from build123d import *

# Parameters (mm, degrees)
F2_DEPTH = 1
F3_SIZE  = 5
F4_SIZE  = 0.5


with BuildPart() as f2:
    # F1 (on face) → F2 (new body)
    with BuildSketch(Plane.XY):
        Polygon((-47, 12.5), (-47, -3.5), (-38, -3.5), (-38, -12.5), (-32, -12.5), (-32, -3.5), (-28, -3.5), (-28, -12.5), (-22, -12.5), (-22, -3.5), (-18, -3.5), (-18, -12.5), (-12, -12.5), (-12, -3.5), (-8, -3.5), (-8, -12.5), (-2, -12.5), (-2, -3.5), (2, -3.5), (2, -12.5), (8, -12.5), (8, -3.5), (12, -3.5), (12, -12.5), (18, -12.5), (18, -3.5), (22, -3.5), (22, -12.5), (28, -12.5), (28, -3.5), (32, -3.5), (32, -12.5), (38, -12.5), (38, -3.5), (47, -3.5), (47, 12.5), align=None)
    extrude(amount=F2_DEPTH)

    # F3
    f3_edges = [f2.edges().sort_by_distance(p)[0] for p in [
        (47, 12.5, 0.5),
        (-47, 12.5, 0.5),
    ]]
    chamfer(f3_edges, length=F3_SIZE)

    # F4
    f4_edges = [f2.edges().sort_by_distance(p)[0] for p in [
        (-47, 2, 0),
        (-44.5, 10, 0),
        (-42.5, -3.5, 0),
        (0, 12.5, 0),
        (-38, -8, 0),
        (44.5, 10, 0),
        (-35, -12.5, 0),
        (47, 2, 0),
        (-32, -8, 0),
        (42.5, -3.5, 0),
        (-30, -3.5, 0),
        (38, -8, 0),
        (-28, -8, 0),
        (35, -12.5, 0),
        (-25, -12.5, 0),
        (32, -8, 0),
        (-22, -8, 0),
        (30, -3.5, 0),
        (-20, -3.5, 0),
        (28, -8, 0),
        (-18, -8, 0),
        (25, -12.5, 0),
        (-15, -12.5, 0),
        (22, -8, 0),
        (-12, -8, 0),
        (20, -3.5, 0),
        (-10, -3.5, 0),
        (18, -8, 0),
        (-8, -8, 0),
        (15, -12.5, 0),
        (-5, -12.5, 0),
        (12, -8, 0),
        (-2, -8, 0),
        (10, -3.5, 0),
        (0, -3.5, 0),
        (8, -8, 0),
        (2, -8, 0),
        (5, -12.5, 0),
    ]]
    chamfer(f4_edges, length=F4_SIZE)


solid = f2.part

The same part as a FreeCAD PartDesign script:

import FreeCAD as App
import Part
import Sketcher


def edges_at(feature, points):
    """Names of the edges that pass closest to the given points."""
    edges = feature.Shape.Edges
    near = lambda p: min(range(len(edges)), key=lambda i: edges[i].distToShape(Part.Vertex(*p))[0])
    return sorted({f"Edge{near(p) + 1}" for p in points})

doc = App.newDocument("Part")
body = doc.addObject("PartDesign::Body", "Body")

sketch1 = doc.addObject("Sketcher::SketchObject", "Sketch")
body.addObject(sketch1)
sketch1.AttachmentSupport = (doc.XY_Plane, [""])
sketch1.MapMode = "FlatFace"
sketch1.addGeometry(Part.LineSegment(App.Vector(-47, 12.5, 0), App.Vector(-47, -3.5, 0)), False)
sketch1.addGeometry(Part.LineSegment(App.Vector(-47, -3.5, 0), App.Vector(-38, -3.5, 0)), False)
sketch1.addGeometry(Part.LineSegment(App.Vector(-38, -3.5, 0), App.Vector(-38, -12.5, 0)), False)
sketch1.addGeometry(Part.LineSegment(App.Vector(-38, -12.5, 0), App.Vector(-32, -12.5, 0)), False)
sketch1.addGeometry(Part.LineSegment(App.Vector(-32, -12.5, 0), App.Vector(-32, -3.5, 0)), False)
sketch1.addGeometry(Part.LineSegment(App.Vector(-32, -3.5, 0), App.Vector(-28, -3.5, 0)), False)
sketch1.addGeometry(Part.LineSegment(App.Vector(-28, -3.5, 0), App.Vector(-28, -12.5, 0)), False)
sketch1.addGeometry(Part.LineSegment(App.Vector(-28, -12.5, 0), App.Vector(-22, -12.5, 0)), False)
sketch1.addGeometry(Part.LineSegment(App.Vector(-22, -12.5, 0), App.Vector(-22, -3.5, 0)), False)
sketch1.addGeometry(Part.LineSegment(App.Vector(-22, -3.5, 0), App.Vector(-18, -3.5, 0)), False)
sketch1.addGeometry(Part.LineSegment(App.Vector(-18, -3.5, 0), App.Vector(-18, -12.5, 0)), False)
sketch1.addGeometry(Part.LineSegment(App.Vector(-18, -12.5, 0), App.Vector(-12, -12.5, 0)), False)
sketch1.addGeometry(Part.LineSegment(App.Vector(-12, -12.5, 0), App.Vector(-12, -3.5, 0)), False)
sketch1.addGeometry(Part.LineSegment(App.Vector(-12, -3.5, 0), App.Vector(-8, -3.5, 0)), False)
sketch1.addGeometry(Part.LineSegment(App.Vector(-8, -3.5, 0), App.Vector(-8, -12.5, 0)), False)
sketch1.addGeometry(Part.LineSegment(App.Vector(-8, -12.5, 0), App.Vector(-2, -12.5, 0)), False)
sketch1.addGeometry(Part.LineSegment(App.Vector(-2, -12.5, 0), App.Vector(-2, -3.5, 0)), False)
sketch1.addGeometry(Part.LineSegment(App.Vector(-2, -3.5, 0), App.Vector(2, -3.5, 0)), False)
sketch1.addGeometry(Part.LineSegment(App.Vector(2, -3.5, 0), App.Vector(2, -12.5, 0)), False)
sketch1.addGeometry(Part.LineSegment(App.Vector(2, -12.5, 0), App.Vector(8, -12.5, 0)), False)
sketch1.addGeometry(Part.LineSegment(App.Vector(8, -12.5, 0), App.Vector(8, -3.5, 0)), False)
sketch1.addGeometry(Part.LineSegment(App.Vector(8, -3.5, 0), App.Vector(12, -3.5, 0)), False)
sketch1.addGeometry(Part.LineSegment(App.Vector(12, -3.5, 0), App.Vector(12, -12.5, 0)), False)
sketch1.addGeometry(Part.LineSegment(App.Vector(12, -12.5, 0), App.Vector(18, -12.5, 0)), False)
sketch1.addGeometry(Part.LineSegment(App.Vector(18, -12.5, 0), App.Vector(18, -3.5, 0)), False)
sketch1.addGeometry(Part.LineSegment(App.Vector(18, -3.5, 0), App.Vector(22, -3.5, 0)), False)
sketch1.addGeometry(Part.LineSegment(App.Vector(22, -3.5, 0), App.Vector(22, -12.5, 0)), False)
sketch1.addGeometry(Part.LineSegment(App.Vector(22, -12.5, 0), App.Vector(28, -12.5, 0)), False)
sketch1.addGeometry(Part.LineSegment(App.Vector(28, -12.5, 0), App.Vector(28, -3.5, 0)), False)
sketch1.addGeometry(Part.LineSegment(App.Vector(28, -3.5, 0), App.Vector(32, -3.5, 0)), False)
sketch1.addGeometry(Part.LineSegment(App.Vector(32, -3.5, 0), App.Vector(32, -12.5, 0)), False)
sketch1.addGeometry(Part.LineSegment(App.Vector(32, -12.5, 0), App.Vector(38, -12.5, 0)), False)
sketch1.addGeometry(Part.LineSegment(App.Vector(38, -12.5, 0), App.Vector(38, -3.5, 0)), False)
sketch1.addGeometry(Part.LineSegment(App.Vector(38, -3.5, 0), App.Vector(47, -3.5, 0)), False)
sketch1.addGeometry(Part.LineSegment(App.Vector(47, -3.5, 0), App.Vector(47, 12.5, 0)), False)
sketch1.addGeometry(Part.LineSegment(App.Vector(47, 12.5, 0), App.Vector(-47, 12.5, 0)), False)
sketch1.addConstraint(Sketcher.Constraint("Coincident", 0, 2, 1, 1))
sketch1.addConstraint(Sketcher.Constraint("Coincident", 1, 2, 2, 1))
sketch1.addConstraint(Sketcher.Constraint("Coincident", 2, 2, 3, 1))
sketch1.addConstraint(Sketcher.Constraint("Coincident", 3, 2, 4, 1))
sketch1.addConstraint(Sketcher.Constraint("Coincident", 4, 2, 5, 1))
sketch1.addConstraint(Sketcher.Constraint("Coincident", 5, 2, 6, 1))
sketch1.addConstraint(Sketcher.Constraint("Coincident", 6, 2, 7, 1))
sketch1.addConstraint(Sketcher.Constraint("Coincident", 7, 2, 8, 1))
sketch1.addConstraint(Sketcher.Constraint("Coincident", 8, 2, 9, 1))
sketch1.addConstraint(Sketcher.Constraint("Coincident", 9, 2, 10, 1))
sketch1.addConstraint(Sketcher.Constraint("Coincident", 10, 2, 11, 1))
sketch1.addConstraint(Sketcher.Constraint("Coincident", 11, 2, 12, 1))
sketch1.addConstraint(Sketcher.Constraint("Coincident", 12, 2, 13, 1))
sketch1.addConstraint(Sketcher.Constraint("Coincident", 13, 2, 14, 1))
sketch1.addConstraint(Sketcher.Constraint("Coincident", 14, 2, 15, 1))
sketch1.addConstraint(Sketcher.Constraint("Coincident", 15, 2, 16, 1))
sketch1.addConstraint(Sketcher.Constraint("Coincident", 16, 2, 17, 1))
sketch1.addConstraint(Sketcher.Constraint("Coincident", 17, 2, 18, 1))
sketch1.addConstraint(Sketcher.Constraint("Coincident", 18, 2, 19, 1))
sketch1.addConstraint(Sketcher.Constraint("Coincident", 19, 2, 20, 1))
sketch1.addConstraint(Sketcher.Constraint("Coincident", 20, 2, 21, 1))
sketch1.addConstraint(Sketcher.Constraint("Coincident", 21, 2, 22, 1))
sketch1.addConstraint(Sketcher.Constraint("Coincident", 22, 2, 23, 1))
sketch1.addConstraint(Sketcher.Constraint("Coincident", 23, 2, 24, 1))
sketch1.addConstraint(Sketcher.Constraint("Coincident", 24, 2, 25, 1))
sketch1.addConstraint(Sketcher.Constraint("Coincident", 25, 2, 26, 1))
sketch1.addConstraint(Sketcher.Constraint("Coincident", 26, 2, 27, 1))
sketch1.addConstraint(Sketcher.Constraint("Coincident", 27, 2, 28, 1))
sketch1.addConstraint(Sketcher.Constraint("Coincident", 28, 2, 29, 1))
sketch1.addConstraint(Sketcher.Constraint("Coincident", 29, 2, 30, 1))
sketch1.addConstraint(Sketcher.Constraint("Coincident", 30, 2, 31, 1))
sketch1.addConstraint(Sketcher.Constraint("Coincident", 31, 2, 32, 1))
sketch1.addConstraint(Sketcher.Constraint("Coincident", 32, 2, 33, 1))
sketch1.addConstraint(Sketcher.Constraint("Coincident", 33, 2, 34, 1))
sketch1.addConstraint(Sketcher.Constraint("Coincident", 34, 2, 35, 1))
sketch1.addConstraint(Sketcher.Constraint("Coincident", 35, 2, 0, 1))
sketch1.addConstraint(Sketcher.Constraint("Vertical", 0))
sketch1.addConstraint(Sketcher.Constraint("Horizontal", 1))
sketch1.addConstraint(Sketcher.Constraint("Vertical", 2))
sketch1.addConstraint(Sketcher.Constraint("Horizontal", 3))
sketch1.addConstraint(Sketcher.Constraint("Vertical", 4))
sketch1.addConstraint(Sketcher.Constraint("Horizontal", 5))
sketch1.addConstraint(Sketcher.Constraint("Vertical", 6))
sketch1.addConstraint(Sketcher.Constraint("Horizontal", 7))
sketch1.addConstraint(Sketcher.Constraint("Vertical", 8))
sketch1.addConstraint(Sketcher.Constraint("Horizontal", 9))
sketch1.addConstraint(Sketcher.Constraint("Vertical", 10))
sketch1.addConstraint(Sketcher.Constraint("Horizontal", 11))
sketch1.addConstraint(Sketcher.Constraint("Vertical", 12))
sketch1.addConstraint(Sketcher.Constraint("Horizontal", 13))
sketch1.addConstraint(Sketcher.Constraint("Vertical", 14))
sketch1.addConstraint(Sketcher.Constraint("Horizontal", 15))
sketch1.addConstraint(Sketcher.Constraint("Vertical", 16))
sketch1.addConstraint(Sketcher.Constraint("Horizontal", 17))
sketch1.addConstraint(Sketcher.Constraint("Vertical", 18))
sketch1.addConstraint(Sketcher.Constraint("Horizontal", 19))
sketch1.addConstraint(Sketcher.Constraint("Vertical", 20))
sketch1.addConstraint(Sketcher.Constraint("Horizontal", 21))
sketch1.addConstraint(Sketcher.Constraint("Vertical", 22))
sketch1.addConstraint(Sketcher.Constraint("Horizontal", 23))
sketch1.addConstraint(Sketcher.Constraint("Vertical", 24))
sketch1.addConstraint(Sketcher.Constraint("Horizontal", 25))
sketch1.addConstraint(Sketcher.Constraint("Vertical", 26))
sketch1.addConstraint(Sketcher.Constraint("Horizontal", 27))
sketch1.addConstraint(Sketcher.Constraint("Vertical", 28))
sketch1.addConstraint(Sketcher.Constraint("Horizontal", 29))
sketch1.addConstraint(Sketcher.Constraint("Vertical", 30))
sketch1.addConstraint(Sketcher.Constraint("Horizontal", 31))
sketch1.addConstraint(Sketcher.Constraint("Vertical", 32))
sketch1.addConstraint(Sketcher.Constraint("Horizontal", 33))
sketch1.addConstraint(Sketcher.Constraint("Vertical", 34))
sketch1.addConstraint(Sketcher.Constraint("Horizontal", 35))
sketch1.addConstraint(Sketcher.Constraint("Symmetric", 15, 2, 18, 2, -2))
sketch1.addConstraint(Sketcher.Constraint("Symmetric", 13, 2, 20, 2, -2))
sketch1.addConstraint(Sketcher.Constraint("Symmetric", 11, 2, 22, 2, -2))
sketch1.addConstraint(Sketcher.Constraint("Symmetric", 9, 2, 24, 2, -2))
sketch1.addConstraint(Sketcher.Constraint("Symmetric", 7, 2, 26, 2, -2))
sketch1.addConstraint(Sketcher.Constraint("Symmetric", 5, 2, 28, 2, -2))
sketch1.addConstraint(Sketcher.Constraint("Symmetric", 3, 2, 30, 2, -2))
sketch1.addConstraint(Sketcher.Constraint("Symmetric", 1, 2, 32, 2, -2))
sketch1.addConstraint(Sketcher.Constraint("Horizontal", 1, 2, 4, 2))
sketch1.addConstraint(Sketcher.Constraint("Horizontal", 3, 2, 6, 2))
sketch1.addConstraint(Sketcher.Constraint("Horizontal", 5, 2, 8, 2))
sketch1.addConstraint(Sketcher.Constraint("Horizontal", 7, 2, 10, 2))
sketch1.addConstraint(Sketcher.Constraint("Horizontal", 9, 2, 12, 2))
sketch1.addConstraint(Sketcher.Constraint("Horizontal", 11, 2, 14, 2))
sketch1.addConstraint(Sketcher.Constraint("Horizontal", 13, 2, 16, 2))
sketch1.addConstraint(Sketcher.Constraint("Equal", 3, 7))
sketch1.addConstraint(Sketcher.Constraint("Equal", 5, 9))
sketch1.addConstraint(Sketcher.Constraint("Equal", 7, 11))
sketch1.addConstraint(Sketcher.Constraint("Equal", 9, 13))
sketch1.addConstraint(Sketcher.Constraint("Equal", 11, 15))
sketch1.addConstraint(Sketcher.Constraint("Equal", 13, 17))
sketch1.addConstraint(Sketcher.Constraint("Equal", 1, 33))
sketch1.addConstraint(Sketcher.Constraint("Equal", 33, 2))
sketch1.addConstraint(Sketcher.Constraint("DistanceX", 1, 1, 1, 2, 9.0))
sketch1.addConstraint(Sketcher.Constraint("DistanceX", 3, 1, 3, 2, 6.0))
sketch1.addConstraint(Sketcher.Constraint("DistanceX", 5, 1, 5, 2, 4.0))
sketch1.addConstraint(Sketcher.Constraint("DistanceY", 0, 2, 0, 1, 16.0))
sketch1.addConstraint(Sketcher.Constraint("DistanceY", 0, 2, -1, 1, 3.5))
pad1 = doc.addObject("PartDesign::Pad", "Pad")
body.addObject(pad1)
pad1.Profile = sketch1
pad1.Length = 1
doc.recompute()

chamfer = doc.addObject("PartDesign::Chamfer", "Chamfer")
body.addObject(chamfer)
chamfer.Base = (pad1, edges_at(pad1, [(47, 12.5, 0.5), (-47, 12.5, 0.5)]))
chamfer.Size = 5
doc.recompute()

chamfer2 = doc.addObject("PartDesign::Chamfer", "Chamfer001")
body.addObject(chamfer2)
chamfer2.Base = (chamfer, edges_at(chamfer, [
    (-47, 2, 0),
    (-44.5, 10, 0),
    (-42.5, -3.5, 0),
    (0, 12.5, 0),
    (-38, -8, 0),
    (44.5, 10, 0),
    (-35, -12.5, 0),
    (47, 2, 0),
    (-32, -8, 0),
    (42.5, -3.5, 0),
    (-30, -3.5, 0),
    (38, -8, 0),
    (-28, -8, 0),
    (35, -12.5, 0),
    (-25, -12.5, 0),
    (32, -8, 0),
    (-22, -8, 0),
    (30, -3.5, 0),
    (-20, -3.5, 0),
    (28, -8, 0),
    (-18, -8, 0),
    (25, -12.5, 0),
    (-15, -12.5, 0),
    (22, -8, 0),
    (-12, -8, 0),
    (20, -3.5, 0),
    (-10, -3.5, 0),
    (18, -8, 0),
    (-8, -8, 0),
    (15, -12.5, 0),
    (-5, -12.5, 0),
    (12, -8, 0),
    (-2, -8, 0),
    (10, -3.5, 0),
    (0, -3.5, 0),
    (8, -8, 0),
    (2, -8, 0),
    (5, -12.5, 0),
]))
chamfer2.Size = 0.5

doc.recompute()
